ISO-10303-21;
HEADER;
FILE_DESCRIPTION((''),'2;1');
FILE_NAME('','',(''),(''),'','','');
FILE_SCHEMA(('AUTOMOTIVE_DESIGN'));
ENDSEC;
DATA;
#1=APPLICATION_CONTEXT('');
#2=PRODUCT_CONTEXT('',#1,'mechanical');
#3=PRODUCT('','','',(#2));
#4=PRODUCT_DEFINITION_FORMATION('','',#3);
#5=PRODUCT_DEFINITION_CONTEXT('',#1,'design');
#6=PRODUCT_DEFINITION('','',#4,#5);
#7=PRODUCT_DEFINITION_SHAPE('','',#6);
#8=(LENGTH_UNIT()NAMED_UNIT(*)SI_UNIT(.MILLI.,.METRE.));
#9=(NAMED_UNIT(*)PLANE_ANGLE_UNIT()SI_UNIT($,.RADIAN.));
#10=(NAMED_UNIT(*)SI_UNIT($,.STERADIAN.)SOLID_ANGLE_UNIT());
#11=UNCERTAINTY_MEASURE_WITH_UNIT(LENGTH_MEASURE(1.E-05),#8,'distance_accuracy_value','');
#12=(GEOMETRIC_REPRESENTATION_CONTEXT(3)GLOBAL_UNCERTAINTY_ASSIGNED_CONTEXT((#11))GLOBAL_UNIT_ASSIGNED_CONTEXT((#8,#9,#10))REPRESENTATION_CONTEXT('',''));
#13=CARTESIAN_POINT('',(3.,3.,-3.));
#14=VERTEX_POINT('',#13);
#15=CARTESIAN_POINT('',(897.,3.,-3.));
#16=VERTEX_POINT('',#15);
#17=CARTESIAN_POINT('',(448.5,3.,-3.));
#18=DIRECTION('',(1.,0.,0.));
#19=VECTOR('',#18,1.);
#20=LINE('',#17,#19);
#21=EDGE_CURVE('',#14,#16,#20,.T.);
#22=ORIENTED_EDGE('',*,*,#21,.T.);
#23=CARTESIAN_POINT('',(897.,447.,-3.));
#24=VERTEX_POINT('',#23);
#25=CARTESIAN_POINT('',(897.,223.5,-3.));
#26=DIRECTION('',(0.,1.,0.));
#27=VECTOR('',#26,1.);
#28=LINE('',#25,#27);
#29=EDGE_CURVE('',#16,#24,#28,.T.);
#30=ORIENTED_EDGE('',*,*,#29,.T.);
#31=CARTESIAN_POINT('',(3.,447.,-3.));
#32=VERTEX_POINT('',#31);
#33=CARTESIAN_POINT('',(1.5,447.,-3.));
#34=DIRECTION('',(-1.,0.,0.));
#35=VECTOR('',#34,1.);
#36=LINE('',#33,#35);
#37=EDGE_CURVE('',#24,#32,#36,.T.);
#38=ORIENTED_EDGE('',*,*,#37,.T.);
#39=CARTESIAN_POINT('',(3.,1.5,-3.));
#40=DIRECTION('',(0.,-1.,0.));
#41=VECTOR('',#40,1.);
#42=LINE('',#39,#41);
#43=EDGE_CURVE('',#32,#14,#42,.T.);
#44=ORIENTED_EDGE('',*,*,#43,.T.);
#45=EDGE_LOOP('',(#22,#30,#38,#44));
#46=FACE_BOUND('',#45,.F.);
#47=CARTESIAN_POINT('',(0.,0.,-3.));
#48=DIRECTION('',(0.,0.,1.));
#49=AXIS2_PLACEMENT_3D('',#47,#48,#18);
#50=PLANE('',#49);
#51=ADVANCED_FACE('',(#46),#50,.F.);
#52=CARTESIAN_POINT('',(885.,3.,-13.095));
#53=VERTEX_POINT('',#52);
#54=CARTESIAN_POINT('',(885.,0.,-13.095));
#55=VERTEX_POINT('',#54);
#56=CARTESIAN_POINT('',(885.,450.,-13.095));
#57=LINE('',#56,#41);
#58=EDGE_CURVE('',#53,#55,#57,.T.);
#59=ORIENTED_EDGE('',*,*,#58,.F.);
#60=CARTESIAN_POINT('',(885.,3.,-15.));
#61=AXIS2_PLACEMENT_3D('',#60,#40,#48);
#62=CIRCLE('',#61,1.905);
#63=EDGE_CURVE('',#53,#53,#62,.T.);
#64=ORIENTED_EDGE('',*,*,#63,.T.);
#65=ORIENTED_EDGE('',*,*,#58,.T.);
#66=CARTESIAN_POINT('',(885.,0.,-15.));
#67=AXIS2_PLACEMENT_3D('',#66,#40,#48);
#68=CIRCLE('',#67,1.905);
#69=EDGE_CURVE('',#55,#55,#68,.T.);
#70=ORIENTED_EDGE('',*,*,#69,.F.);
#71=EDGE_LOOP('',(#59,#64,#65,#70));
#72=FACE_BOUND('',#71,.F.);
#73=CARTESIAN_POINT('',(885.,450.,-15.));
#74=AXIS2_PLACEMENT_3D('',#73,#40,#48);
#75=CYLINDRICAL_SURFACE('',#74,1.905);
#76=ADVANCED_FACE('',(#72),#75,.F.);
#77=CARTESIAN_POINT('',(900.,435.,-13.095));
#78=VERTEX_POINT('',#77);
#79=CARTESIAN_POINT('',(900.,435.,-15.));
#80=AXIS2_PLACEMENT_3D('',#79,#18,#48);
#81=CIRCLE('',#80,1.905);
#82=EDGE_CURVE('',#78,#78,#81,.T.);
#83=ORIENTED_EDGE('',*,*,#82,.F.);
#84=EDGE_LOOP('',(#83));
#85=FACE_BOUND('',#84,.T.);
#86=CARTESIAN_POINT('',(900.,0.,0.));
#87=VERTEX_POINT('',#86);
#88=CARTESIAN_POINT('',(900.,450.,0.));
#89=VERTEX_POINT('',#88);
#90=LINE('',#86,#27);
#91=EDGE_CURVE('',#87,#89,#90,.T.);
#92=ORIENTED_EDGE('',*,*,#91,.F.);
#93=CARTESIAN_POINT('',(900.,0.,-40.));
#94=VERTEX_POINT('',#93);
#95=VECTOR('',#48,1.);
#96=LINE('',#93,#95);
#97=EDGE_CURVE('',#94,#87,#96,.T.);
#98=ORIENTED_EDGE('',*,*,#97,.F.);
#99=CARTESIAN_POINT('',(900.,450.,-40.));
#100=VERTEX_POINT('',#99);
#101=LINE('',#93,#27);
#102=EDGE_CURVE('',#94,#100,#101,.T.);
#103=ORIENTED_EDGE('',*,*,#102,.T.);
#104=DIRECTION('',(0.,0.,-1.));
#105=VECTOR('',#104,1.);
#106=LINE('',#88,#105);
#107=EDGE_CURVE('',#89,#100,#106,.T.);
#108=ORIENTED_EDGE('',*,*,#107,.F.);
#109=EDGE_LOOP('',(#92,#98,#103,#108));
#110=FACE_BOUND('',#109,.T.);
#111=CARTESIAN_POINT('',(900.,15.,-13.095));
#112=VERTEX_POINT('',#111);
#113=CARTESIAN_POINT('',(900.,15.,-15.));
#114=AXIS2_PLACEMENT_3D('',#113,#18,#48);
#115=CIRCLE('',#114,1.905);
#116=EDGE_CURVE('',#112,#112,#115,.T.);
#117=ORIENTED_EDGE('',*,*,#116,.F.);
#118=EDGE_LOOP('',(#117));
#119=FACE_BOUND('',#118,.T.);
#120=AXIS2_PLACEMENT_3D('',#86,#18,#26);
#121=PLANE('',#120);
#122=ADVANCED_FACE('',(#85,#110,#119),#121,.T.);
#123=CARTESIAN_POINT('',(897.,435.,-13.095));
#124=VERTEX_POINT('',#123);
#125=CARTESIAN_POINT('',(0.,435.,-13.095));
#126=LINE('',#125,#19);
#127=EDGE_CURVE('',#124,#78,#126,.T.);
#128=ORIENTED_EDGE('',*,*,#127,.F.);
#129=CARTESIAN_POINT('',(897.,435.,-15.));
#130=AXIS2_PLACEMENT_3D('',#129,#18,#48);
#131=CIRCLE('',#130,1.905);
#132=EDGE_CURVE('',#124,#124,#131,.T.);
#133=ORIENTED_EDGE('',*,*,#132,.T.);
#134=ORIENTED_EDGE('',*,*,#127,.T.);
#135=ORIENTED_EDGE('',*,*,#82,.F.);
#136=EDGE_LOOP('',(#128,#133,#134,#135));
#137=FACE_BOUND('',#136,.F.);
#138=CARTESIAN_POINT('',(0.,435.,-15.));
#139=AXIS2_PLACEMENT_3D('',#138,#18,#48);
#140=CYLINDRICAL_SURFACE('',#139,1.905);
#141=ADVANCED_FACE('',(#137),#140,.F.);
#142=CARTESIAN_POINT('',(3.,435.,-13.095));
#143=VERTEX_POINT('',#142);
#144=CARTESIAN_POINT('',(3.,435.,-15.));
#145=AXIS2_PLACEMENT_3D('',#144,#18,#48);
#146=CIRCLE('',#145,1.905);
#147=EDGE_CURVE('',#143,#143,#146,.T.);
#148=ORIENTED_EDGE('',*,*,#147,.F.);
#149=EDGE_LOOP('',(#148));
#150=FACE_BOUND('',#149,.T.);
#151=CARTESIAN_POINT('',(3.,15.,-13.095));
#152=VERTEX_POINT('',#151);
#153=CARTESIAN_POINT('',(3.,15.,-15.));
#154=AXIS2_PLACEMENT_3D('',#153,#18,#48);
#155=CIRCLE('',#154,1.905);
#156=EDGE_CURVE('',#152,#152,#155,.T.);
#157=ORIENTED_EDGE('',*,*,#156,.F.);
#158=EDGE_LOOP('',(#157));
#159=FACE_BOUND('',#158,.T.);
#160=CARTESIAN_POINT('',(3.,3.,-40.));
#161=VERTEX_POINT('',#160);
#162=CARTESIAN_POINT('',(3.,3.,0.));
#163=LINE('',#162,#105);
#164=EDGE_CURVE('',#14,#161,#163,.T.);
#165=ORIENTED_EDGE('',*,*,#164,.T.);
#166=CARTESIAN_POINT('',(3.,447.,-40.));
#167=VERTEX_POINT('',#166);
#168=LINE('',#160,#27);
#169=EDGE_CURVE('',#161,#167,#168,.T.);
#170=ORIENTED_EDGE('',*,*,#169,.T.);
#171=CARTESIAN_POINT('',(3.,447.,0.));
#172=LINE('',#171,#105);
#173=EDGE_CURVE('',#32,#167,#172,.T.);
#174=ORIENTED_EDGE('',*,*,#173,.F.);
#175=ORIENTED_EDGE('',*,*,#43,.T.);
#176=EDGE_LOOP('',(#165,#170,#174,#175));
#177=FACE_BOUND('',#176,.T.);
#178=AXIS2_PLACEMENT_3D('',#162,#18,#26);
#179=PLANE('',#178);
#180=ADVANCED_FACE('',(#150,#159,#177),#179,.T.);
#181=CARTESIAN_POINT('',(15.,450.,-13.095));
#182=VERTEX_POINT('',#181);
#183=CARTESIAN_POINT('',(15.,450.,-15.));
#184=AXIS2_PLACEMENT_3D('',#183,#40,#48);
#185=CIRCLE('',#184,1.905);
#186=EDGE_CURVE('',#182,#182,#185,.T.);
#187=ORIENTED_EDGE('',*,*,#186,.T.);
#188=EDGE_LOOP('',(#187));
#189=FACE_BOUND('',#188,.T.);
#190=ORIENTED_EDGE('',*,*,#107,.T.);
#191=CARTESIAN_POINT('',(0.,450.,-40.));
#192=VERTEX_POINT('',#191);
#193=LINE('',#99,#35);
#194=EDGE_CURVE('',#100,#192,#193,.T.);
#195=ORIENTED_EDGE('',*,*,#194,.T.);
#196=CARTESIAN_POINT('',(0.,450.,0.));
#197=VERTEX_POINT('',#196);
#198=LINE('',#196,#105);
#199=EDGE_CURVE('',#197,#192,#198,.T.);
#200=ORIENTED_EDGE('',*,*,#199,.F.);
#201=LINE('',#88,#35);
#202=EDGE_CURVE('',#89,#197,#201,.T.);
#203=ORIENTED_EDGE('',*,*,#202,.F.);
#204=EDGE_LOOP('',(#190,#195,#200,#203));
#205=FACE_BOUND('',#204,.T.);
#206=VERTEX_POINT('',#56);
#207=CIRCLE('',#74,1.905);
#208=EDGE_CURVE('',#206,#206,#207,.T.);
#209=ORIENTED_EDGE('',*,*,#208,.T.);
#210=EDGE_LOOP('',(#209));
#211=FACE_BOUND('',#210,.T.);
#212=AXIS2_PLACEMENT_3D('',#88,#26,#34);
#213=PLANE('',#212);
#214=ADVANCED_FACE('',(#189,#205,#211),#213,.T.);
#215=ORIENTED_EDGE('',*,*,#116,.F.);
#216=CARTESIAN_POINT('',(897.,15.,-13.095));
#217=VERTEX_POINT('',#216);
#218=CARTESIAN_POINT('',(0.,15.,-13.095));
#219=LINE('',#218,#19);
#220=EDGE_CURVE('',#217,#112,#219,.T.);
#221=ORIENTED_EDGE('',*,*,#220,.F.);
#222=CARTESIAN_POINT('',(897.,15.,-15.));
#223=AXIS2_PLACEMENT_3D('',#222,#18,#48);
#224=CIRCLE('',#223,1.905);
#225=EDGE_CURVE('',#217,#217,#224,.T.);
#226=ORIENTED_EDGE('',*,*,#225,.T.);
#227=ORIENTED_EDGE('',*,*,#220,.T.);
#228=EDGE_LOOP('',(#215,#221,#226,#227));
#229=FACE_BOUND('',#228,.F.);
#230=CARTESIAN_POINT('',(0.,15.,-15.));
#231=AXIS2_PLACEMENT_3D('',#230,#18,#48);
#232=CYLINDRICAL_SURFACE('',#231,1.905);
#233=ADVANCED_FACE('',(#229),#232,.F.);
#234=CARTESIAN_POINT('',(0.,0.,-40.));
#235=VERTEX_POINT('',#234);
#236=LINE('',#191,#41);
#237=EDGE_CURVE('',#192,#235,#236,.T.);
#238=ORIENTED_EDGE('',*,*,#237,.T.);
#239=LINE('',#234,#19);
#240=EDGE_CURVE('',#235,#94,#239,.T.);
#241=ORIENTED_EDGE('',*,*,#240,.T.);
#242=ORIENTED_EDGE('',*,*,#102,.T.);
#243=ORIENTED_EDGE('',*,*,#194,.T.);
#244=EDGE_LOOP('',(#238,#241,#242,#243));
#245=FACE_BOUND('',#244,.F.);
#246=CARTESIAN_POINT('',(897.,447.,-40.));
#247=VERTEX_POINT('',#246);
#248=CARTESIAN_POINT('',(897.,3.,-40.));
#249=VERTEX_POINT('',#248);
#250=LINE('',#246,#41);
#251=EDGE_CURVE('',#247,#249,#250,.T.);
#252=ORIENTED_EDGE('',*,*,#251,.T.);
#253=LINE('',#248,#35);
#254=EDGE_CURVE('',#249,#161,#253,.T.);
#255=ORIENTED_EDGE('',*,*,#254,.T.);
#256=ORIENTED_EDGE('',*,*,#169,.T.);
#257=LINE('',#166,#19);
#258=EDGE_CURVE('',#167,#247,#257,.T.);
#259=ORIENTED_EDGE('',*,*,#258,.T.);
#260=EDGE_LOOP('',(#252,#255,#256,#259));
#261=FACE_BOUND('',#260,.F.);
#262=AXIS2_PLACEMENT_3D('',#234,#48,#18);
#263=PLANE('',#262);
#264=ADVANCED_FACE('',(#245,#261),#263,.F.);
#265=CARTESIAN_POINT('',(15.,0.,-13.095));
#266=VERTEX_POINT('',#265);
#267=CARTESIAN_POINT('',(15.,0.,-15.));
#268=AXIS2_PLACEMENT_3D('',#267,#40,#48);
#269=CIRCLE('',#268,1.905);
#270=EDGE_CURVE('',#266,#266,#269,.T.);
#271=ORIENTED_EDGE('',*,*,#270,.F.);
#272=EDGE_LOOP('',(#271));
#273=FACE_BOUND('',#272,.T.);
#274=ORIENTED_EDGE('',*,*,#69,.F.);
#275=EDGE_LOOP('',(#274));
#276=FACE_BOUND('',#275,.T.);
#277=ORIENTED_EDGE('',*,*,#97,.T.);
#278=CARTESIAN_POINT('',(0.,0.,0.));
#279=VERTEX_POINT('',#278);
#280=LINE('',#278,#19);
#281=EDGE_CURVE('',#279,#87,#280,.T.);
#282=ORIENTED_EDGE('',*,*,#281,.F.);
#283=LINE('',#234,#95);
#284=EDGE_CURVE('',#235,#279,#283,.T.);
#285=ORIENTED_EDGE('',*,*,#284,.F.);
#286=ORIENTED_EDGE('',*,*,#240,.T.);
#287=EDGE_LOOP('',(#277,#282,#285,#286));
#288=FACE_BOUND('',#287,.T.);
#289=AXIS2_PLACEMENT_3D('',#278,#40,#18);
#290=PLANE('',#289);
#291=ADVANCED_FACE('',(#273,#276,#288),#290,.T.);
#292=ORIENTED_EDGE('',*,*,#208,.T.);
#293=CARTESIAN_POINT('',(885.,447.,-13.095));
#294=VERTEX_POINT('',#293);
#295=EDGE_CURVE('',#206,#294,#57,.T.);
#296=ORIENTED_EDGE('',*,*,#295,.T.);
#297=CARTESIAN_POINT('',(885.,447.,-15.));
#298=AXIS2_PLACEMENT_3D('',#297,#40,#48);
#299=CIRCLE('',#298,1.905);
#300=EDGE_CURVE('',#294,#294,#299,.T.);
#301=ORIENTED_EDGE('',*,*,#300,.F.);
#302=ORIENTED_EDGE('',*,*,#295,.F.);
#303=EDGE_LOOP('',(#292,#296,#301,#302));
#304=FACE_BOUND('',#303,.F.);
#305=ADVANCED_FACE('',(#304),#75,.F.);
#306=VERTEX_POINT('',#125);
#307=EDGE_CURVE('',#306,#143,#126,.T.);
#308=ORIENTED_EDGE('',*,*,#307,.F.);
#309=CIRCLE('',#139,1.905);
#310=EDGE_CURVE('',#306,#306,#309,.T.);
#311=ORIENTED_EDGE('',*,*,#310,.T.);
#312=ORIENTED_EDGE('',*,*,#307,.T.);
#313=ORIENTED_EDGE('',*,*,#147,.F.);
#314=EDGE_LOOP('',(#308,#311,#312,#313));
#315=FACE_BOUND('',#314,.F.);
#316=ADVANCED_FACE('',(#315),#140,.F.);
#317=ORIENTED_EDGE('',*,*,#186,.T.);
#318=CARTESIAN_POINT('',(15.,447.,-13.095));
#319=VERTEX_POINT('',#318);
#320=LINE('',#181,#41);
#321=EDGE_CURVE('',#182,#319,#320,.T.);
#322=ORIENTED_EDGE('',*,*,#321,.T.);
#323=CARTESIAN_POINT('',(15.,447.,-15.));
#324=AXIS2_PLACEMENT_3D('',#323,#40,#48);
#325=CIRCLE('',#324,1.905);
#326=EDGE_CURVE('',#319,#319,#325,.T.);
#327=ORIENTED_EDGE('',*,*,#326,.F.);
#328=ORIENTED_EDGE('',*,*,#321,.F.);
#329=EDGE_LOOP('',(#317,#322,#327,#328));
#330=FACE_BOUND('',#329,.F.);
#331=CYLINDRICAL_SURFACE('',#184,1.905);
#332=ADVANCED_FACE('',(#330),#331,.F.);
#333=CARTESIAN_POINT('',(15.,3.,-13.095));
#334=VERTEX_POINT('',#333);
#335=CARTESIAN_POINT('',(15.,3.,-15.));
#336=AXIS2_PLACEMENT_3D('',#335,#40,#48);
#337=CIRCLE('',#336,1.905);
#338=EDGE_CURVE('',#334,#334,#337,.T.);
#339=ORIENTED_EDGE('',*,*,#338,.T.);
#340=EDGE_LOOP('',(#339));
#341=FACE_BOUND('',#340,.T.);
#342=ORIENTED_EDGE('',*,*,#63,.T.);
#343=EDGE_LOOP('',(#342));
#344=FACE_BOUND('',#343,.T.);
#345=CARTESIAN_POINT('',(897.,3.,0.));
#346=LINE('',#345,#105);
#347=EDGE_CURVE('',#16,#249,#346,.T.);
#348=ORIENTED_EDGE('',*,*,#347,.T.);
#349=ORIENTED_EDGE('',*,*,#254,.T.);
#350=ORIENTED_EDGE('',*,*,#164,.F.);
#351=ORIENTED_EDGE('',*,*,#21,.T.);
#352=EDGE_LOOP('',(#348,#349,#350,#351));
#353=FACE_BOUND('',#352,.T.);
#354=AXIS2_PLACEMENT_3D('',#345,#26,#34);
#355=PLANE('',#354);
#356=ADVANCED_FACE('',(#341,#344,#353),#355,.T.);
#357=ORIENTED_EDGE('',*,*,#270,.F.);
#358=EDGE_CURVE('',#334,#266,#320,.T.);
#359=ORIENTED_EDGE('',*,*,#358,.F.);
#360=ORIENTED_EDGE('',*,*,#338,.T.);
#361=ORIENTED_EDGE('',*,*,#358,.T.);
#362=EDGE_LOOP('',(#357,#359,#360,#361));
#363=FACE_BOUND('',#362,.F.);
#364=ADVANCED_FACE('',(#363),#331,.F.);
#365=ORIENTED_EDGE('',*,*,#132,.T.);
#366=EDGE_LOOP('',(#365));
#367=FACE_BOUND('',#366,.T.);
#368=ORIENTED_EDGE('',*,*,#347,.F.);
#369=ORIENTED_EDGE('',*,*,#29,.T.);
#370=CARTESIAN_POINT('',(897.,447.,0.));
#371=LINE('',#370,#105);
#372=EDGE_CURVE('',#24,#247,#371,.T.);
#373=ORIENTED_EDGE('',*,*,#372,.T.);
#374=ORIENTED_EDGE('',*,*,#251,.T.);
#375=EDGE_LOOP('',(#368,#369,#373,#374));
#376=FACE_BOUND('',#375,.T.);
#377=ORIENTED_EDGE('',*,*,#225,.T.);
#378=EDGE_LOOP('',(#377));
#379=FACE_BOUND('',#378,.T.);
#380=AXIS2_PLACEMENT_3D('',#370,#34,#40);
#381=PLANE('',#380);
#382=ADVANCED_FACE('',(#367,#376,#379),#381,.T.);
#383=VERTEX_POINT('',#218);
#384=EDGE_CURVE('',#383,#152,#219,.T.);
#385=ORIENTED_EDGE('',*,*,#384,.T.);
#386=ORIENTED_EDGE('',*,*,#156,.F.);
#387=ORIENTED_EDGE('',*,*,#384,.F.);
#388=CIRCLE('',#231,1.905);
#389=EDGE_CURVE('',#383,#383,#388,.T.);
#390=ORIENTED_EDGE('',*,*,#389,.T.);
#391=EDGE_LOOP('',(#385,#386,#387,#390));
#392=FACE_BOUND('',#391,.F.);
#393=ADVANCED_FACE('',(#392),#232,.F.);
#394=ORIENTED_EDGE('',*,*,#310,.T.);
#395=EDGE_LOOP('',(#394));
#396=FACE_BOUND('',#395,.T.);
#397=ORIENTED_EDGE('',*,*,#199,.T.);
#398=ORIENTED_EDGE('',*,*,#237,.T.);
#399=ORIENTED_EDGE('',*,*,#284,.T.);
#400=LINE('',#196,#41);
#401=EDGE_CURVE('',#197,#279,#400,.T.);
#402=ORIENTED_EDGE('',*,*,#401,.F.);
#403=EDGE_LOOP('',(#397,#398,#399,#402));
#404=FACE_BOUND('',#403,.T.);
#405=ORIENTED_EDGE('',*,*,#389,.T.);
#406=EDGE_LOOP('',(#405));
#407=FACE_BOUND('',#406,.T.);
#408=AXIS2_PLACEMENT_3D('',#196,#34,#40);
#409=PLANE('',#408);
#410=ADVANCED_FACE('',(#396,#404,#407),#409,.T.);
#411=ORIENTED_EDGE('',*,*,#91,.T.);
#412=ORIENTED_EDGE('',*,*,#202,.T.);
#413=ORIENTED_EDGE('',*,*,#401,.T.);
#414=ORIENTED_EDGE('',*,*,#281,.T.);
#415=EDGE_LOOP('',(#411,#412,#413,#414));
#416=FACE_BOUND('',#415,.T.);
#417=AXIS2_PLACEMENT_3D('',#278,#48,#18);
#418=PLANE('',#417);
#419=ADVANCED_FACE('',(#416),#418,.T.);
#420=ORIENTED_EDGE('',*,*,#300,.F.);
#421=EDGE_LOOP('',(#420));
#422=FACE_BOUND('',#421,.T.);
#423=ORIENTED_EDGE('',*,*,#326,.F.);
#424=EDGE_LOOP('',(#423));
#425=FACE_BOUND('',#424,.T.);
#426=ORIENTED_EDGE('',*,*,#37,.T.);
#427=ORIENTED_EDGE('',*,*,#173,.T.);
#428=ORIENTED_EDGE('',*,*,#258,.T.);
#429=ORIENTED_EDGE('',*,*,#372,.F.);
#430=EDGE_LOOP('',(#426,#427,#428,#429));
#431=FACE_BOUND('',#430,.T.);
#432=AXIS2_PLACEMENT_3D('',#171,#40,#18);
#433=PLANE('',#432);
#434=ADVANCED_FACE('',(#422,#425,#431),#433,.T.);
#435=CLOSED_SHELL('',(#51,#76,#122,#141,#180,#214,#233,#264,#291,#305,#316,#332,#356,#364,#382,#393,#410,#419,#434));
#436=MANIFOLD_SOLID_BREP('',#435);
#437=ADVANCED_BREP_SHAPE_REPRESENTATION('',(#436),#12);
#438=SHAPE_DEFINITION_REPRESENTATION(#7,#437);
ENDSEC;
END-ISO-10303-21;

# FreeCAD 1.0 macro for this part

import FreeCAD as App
import Part
import Sketcher

V = App.Vector

doc = App.newDocument("Part")
body = doc.addObject("PartDesign::Body", "Body")

# Sketch on XY plane
sketch1 = doc.addObject("Sketcher::SketchObject", "Sketch")
body.addObject(sketch1)
sketch1.AttachmentSupport = (doc.XY_Plane, [""])
sketch1.MapMode = "FlatFace"
sketch1.addGeometry([
    Part.LineSegment(V(0, 450, 0), V(0, 0, 0)),  # 0
    Part.LineSegment(V(0, 0, 0), V(900, 0, 0)),  # 1
    Part.LineSegment(V(900, 0, 0), V(900, 450, 0)),  # 2
    Part.LineSegment(V(900, 450, 0), V(0, 450, 0)),  # 3
    Part.LineSegment(V(3, 3, 0), V(3, 447, 0)),  # 4
    Part.LineSegment(V(3, 447, 0), V(897, 447, 0)),  # 5
    Part.LineSegment(V(897, 447, 0), V(897, 3, 0)),  # 6
    Part.LineSegment(V(897, 3, 0), V(3, 3, 0)),  # 7
], False)
sketch1.addConstraint([
    Sketcher.Constraint("Coincident", 0, 2, 1, 1),
    Sketcher.Constraint("Coincident", 1, 2, 2, 1),
    Sketcher.Constraint("Coincident", 2, 2, 3, 1),
    Sketcher.Constraint("Coincident", 3, 2, 0, 1),
    Sketcher.Constraint("Coincident", 4, 2, 5, 1),
    Sketcher.Constraint("Coincident", 5, 2, 6, 1),
    Sketcher.Constraint("Coincident", 6, 2, 7, 1),
    Sketcher.Constraint("Coincident", 7, 2, 4, 1),
    Sketcher.Constraint("Vertical", 0),
    Sketcher.Constraint("Horizontal", 1),
    Sketcher.Constraint("Vertical", 2),
    Sketcher.Constraint("Horizontal", 3),
    Sketcher.Constraint("Vertical", 4),
    Sketcher.Constraint("Horizontal", 5),
    Sketcher.Constraint("Vertical", 6),
    Sketcher.Constraint("Horizontal", 7),
    Sketcher.Constraint("Coincident", 0, 2, -1, 1),
    Sketcher.Constraint("DistanceX", 1, 1, 1, 2, 900.0),
    Sketcher.Constraint("DistanceY", 0, 2, 0, 1, 450.0),
    Sketcher.Constraint("DistanceX", -1, 1, 4, 2, 3.0),
    Sketcher.Constraint("DistanceY", -1, 1, 6, 2, 3.0),
    Sketcher.Constraint("DistanceY", 4, 2, 3, 2, 3.0),
    Sketcher.Constraint("DistanceX", 5, 2, 2, 2, 3.0),
])
pad1 = doc.addObject("PartDesign::Pad", "Pad")
body.addObject(pad1)
pad1.Profile = sketch1
pad1.Length = 40
pad1.Reversed = True

# Sketch on XY plane
sketch2 = doc.addObject("Sketcher::SketchObject", "Sketch001")
body.addObject(sketch2)
sketch2.AttachmentSupport = (doc.XY_Plane, [""])
sketch2.MapMode = "FlatFace"
sketch2.addGeometry([
    Part.LineSegment(V(0, 450, 0), V(0, 0, 0)),
    Part.LineSegment(V(0, 0, 0), V(900, 0, 0)),
    Part.LineSegment(V(900, 0, 0), V(900, 450, 0)),
    Part.LineSegment(V(900, 450, 0), V(0, 450, 0)),
], False)
sketch2.addConstraint([
    Sketcher.Constraint("Coincident", 0, 2, 1, 1),
    Sketcher.Constraint("Coincident", 1, 2, 2, 1),
    Sketcher.Constraint("Coincident", 2, 2, 3, 1),
    Sketcher.Constraint("Coincident", 3, 2, 0, 1),
    Sketcher.Constraint("Vertical", 0),
    Sketcher.Constraint("Horizontal", 1),
    Sketcher.Constraint("Vertical", 2),
    Sketcher.Constraint("Horizontal", 3),
    Sketcher.Constraint("Coincident", 0, 2, -1, 1),
    Sketcher.Constraint("DistanceX", 1, 1, 1, 2, 900.0),
    Sketcher.Constraint("DistanceY", 0, 2, 0, 1, 450.0),
])
pad2 = doc.addObject("PartDesign::Pad", "Pad001")
body.addObject(pad2)
pad2.Profile = sketch2
pad2.Length = 3
pad2.Reversed = True

# Sketch on XZ plane
sketch3 = doc.addObject("Sketcher::SketchObject", "Sketch002")
body.addObject(sketch3)
sketch3.AttachmentSupport = (doc.XZ_Plane, [""])
sketch3.MapMode = "FlatFace"
sketch3.AttachmentOffset = App.Placement(V(0, 0, -450), App.Rotation())
sketch3.addGeometry([
    Part.Circle(V(15, -15, 0), V(0, 0, 1), 1.905),
    Part.Circle(V(885, -15, 0), V(0, 0, 1), 1.905),
], False)
sketch3.addConstraint([
    Sketcher.Constraint("Equal", 0, 1),
    Sketcher.Constraint("Horizontal", 0, 3, 1, 3),
    Sketcher.Constraint("Diameter", 0, 3.81),
    Sketcher.Constraint("DistanceX", -1, 1, 0, 3, 15.0),
    Sketcher.Constraint("DistanceY", 0, 3, -1, 1, 15.0),
    Sketcher.Constraint("DistanceX", -1, 1, 1, 3, 885.0),
])
doc.recompute()
hole = doc.addObject("PartDesign::Hole", "Hole")
body.addObject(hole)
hole.Profile = sketch3
hole.ThreadType = "None"
hole.Diameter = 3.81
hole.DepthType = "ThroughAll"
hole.Reversed = True

# Sketch on YZ plane
sketch4 = doc.addObject("Sketcher::SketchObject", "Sketch003")
body.addObject(sketch4)
sketch4.AttachmentSupport = (doc.YZ_Plane, [""])
sketch4.MapMode = "FlatFace"
sketch4.addGeometry([
    Part.Circle(V(15, -15, 0), V(0, 0, 1), 1.905),
    Part.Circle(V(435, -15, 0), V(0, 0, 1), 1.905),
], False)
sketch4.addConstraint([
    Sketcher.Constraint("Equal", 0, 1),
    Sketcher.Constraint("Horizontal", 0, 3, 1, 3),
    Sketcher.Constraint("Diameter", 0, 3.81),
    Sketcher.Constraint("DistanceX", -1, 1, 0, 3, 15.0),
    Sketcher.Constraint("DistanceY", 0, 3, -1, 1, 15.0),
    Sketcher.Constraint("DistanceX", -1, 1, 1, 3, 435.0),
])
doc.recompute()
hole2 = doc.addObject("PartDesign::Hole", "Hole001")
body.addObject(hole2)
hole2.Profile = sketch4
hole2.ThreadType = "None"
hole2.Diameter = 3.81
hole2.DepthType = "ThroughAll"
hole2.Reversed = True

doc.recompute()
